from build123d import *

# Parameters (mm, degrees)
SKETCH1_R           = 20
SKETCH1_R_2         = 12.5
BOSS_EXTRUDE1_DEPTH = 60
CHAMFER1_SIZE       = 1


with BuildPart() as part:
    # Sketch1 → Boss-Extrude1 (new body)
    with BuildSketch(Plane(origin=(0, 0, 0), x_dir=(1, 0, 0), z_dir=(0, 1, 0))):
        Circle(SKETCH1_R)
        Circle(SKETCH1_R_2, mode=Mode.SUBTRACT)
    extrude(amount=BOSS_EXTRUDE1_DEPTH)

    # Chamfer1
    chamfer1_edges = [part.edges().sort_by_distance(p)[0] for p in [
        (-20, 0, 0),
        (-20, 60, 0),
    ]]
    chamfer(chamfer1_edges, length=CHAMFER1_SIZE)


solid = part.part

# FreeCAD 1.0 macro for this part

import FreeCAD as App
import Part
import Sketcher
from FreeCAD import Vector


def edges_at(feature, points):
    """Names of the edges that pass closest to the given points."""
    edges = feature.Shape.Edges
    near = lambda p: min(range(len(edges)), key=lambda i: edges[i].distToShape(Part.Vertex(*p))[0])
    return sorted({f"Edge{near(p) + 1}" for p in points})

doc = App.newDocument("Part")
body = doc.addObject("PartDesign::Body", "Body")

# Sketch on XZ plane
sketch1 = doc.addObject("Sketcher::SketchObject", "Sketch")
body.addObject(sketch1)
sketch1.AttachmentSupport = (doc.XZ_Plane, [""])
sketch1.MapMode = "FlatFace"
sketch1.addGeometry(Part.Circle(Vector(0, 0, 0), Vector(0, 0, 1), 20), False)
sketch1.addGeometry(Part.Circle(Vector(0, 0, 0), Vector(0, 0, 1), 12), False)
sketch1.addConstraint(Sketcher.Constraint("Coincident", 0, 3, -1, 1))
sketch1.addConstraint(Sketcher.Constraint("Coincident", 1, 3, -1, 1))
sketch1.addConstraint(Sketcher.Constraint("Diameter", 0, 40.0))
sketch1.addConstraint(Sketcher.Constraint("Diameter", 1, 25.0))
pad1 = doc.addObject("PartDesign::Pad", "Pad")
body.addObject(pad1)
pad1.Profile = sketch1
pad1.Length = 60
pad1.Reversed = True
doc.recompute()

chamfer = doc.addObject("PartDesign::Chamfer", "Chamfer")
body.addObject(chamfer)
chamfer.Base = (pad1, edges_at(pad1, [(-20, 0, 0), (-20, 60, 0)]))
chamfer.Size = 1

doc.recompute()
